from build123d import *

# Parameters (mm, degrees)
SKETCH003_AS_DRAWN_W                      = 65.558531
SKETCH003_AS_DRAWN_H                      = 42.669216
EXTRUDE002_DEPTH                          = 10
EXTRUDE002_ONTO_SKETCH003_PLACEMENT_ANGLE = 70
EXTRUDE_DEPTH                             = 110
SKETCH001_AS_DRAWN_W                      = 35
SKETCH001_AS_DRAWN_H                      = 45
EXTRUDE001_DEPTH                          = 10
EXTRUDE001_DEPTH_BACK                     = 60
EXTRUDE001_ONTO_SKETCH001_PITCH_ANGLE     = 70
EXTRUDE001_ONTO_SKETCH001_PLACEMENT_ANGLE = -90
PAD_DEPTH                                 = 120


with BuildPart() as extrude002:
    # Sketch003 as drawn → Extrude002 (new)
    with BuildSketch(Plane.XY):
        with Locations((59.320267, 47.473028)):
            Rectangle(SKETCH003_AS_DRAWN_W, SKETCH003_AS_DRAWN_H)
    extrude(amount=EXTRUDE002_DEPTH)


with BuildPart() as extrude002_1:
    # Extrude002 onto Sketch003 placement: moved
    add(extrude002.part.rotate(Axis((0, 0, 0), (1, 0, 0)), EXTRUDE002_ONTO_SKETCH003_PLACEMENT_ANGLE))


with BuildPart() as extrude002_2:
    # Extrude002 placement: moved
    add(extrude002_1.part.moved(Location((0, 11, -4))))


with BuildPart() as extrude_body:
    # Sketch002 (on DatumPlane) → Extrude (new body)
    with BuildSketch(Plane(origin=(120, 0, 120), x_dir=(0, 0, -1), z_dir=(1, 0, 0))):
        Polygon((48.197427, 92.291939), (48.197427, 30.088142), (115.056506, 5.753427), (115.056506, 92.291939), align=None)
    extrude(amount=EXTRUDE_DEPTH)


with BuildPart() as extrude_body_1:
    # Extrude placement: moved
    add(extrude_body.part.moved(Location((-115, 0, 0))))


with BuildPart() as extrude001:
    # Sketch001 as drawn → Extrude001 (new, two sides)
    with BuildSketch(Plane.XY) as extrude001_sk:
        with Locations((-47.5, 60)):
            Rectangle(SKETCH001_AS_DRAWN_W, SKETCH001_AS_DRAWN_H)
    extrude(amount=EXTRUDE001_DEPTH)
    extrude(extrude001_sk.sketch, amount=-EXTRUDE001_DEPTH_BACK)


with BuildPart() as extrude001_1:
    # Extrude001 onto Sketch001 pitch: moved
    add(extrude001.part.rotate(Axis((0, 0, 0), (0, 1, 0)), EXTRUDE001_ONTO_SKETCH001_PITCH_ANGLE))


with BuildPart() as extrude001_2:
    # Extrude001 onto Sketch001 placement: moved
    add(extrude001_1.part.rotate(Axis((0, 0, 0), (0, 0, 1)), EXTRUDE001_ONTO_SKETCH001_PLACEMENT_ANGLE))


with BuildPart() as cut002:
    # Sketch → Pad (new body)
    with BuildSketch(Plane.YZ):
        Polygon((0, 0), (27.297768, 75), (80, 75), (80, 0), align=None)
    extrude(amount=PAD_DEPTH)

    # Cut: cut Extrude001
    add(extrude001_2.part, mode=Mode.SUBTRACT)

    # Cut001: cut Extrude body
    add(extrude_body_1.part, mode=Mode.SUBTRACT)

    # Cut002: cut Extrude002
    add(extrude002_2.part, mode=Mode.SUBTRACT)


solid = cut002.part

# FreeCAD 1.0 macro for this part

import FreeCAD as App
import Part
import Sketcher

V = App.Vector
Q = App.Units.Quantity


def add_polygon(sketch, points):
    """Adds a closed chain of lines whose ends are joined by coincident constraints."""
    first, n = sketch.GeometryCount, len(points)
    for a, b in zip(points, points[1:] + points[:1]):
        sketch.addGeometry(Part.LineSegment(App.Vector(*a, 0), App.Vector(*b, 0)), False)
    for i in range(n):
        sketch.addConstraint(Sketcher.Constraint("Coincident", first + i, 2, first + (i + 1) % n, 1))

doc = App.newDocument("Part")
params = doc.addObject("Spreadsheet::Sheet", "Params")
for row, (alias, value) in enumerate([
    ("pad1_length", "10 mm"),
    ("pad2_length", "110 mm"),
    ("sketch3_width", "35 mm"),
    ("sketch3_height", "45 mm"),
    ("pad3_length", "10 mm"),
    ("pad3_length2", "60 mm"),
    ("sketch4_width", "80 mm"),
    ("sketch4_height", "75 mm"),
    ("pad4_length", "120 mm"),
], start=1):
    params.set(f"A{row}", alias)
    params.set(f"B{row}", "=" + value)
    params.setAlias(f"B{row}", alias)

body = doc.addObject("PartDesign::Body", "Body")

# Sketch on XY plane
sketch1 = body.newObject("Sketcher::SketchObject", "Sketch")
sketch1.AttachmentSupport = (doc.getObject("XY_Plane"), [""])
sketch1.MapMode = "FlatFace"
add_polygon(sketch1, [(26.541002, 68.807636), (26.541002, 26.13842), (92.099532, 26.13842), (92.099532, 68.807636)])  # lines 0-3
sketch1.addConstraint([
    Sketcher.Constraint("Vertical", 0),
    Sketcher.Constraint("Horizontal", 1),
    Sketcher.Constraint("Vertical", 2),
    Sketcher.Constraint("Horizontal", 3),
    Sketcher.Constraint("DistanceX", -1, 1, 0, 2, Q("26.541002 mm")),
    Sketcher.Constraint("DistanceX", 1, 1, 1, 2, Q("65.558531 mm")),
    Sketcher.Constraint("DistanceY", 0, 2, 0, 1, Q("42.669216 mm")),
    Sketcher.Constraint("DistanceY", -1, 1, 0, 2, Q("26.13842 mm")),
])
pad1 = body.newObject("PartDesign::Pad", "Pad")
pad1.Profile = sketch1
pad1.setExpression("Length", "Params.pad1_length")
body2 = doc.addObject("PartDesign::Body", "Body001")
doc.recompute()

body.Placement = App.Placement(V(0, 0, 0), App.Rotation(V(1, 0, 0), 70))
boolean = body2.newObject("PartDesign::Boolean", "Boolean")
boolean.Type = "Fuse"
boolean.addObjects([body])
body3 = doc.addObject("PartDesign::Body", "Body002")
doc.recompute()

body2.Placement = App.Placement(V(0, 11, -4), App.Rotation(V(0, 0, 1), 0))
boolean2 = body3.newObject("PartDesign::Boolean", "Boolean001")
boolean2.Type = "Fuse"
boolean2.addObjects([body2])
body4 = doc.addObject("PartDesign::Body", "Body003")

# Sketch on YZ plane
sketch2 = body4.newObject("Sketcher::SketchObject", "Sketch001")
sketch2.AttachmentSupport = (doc.getObject("YZ_Plane003"), [""])
sketch2.MapMode = "FlatFace"
sketch2.AttachmentOffset = App.Placement(V(0, 0, 120), App.Rotation())
add_polygon(sketch2, [(92.291939, 71.802573), (30.088142, 71.802573), (5.753427, 4.943494), (92.291939, 4.943494)])  # lines 0-3
sketch2.addConstraint([
    Sketcher.Constraint("Horizontal", 0),
    Sketcher.Constraint("Horizontal", 2),
    Sketcher.Constraint("Vertical", 3),
    Sketcher.Constraint("Angle", 1, Q("-110 deg")),
    Sketcher.Constraint("DistanceX", 2, 1, 2, 2, Q("86.538512 mm")),
    Sketcher.Constraint("DistanceY", 3, 1, 3, 2, Q("66.859079 mm")),
    Sketcher.Constraint("DistanceX", -1, 1, 2, 2, Q("92.291939 mm")),
    Sketcher.Constraint("DistanceY", -1, 1, 0, 2, Q("71.802573 mm")),
])
pad2 = body4.newObject("PartDesign::Pad", "Pad001")
pad2.Profile = sketch2
pad2.setExpression("Length", "Params.pad2_length")
body5 = doc.addObject("PartDesign::Body", "Body004")
doc.recompute()

body4.Placement = App.Placement(V(-115, 0, 0), App.Rotation(V(0, 0, 1), 0))
boolean3 = body5.newObject("PartDesign::Boolean", "Boolean002")
boolean3.Type = "Fuse"
boolean3.addObjects([body4])
body6 = doc.addObject("PartDesign::Body", "Body005")

# Sketch on XY plane
sketch3 = body6.newObject("Sketcher::SketchObject", "Sketch002")
sketch3.AttachmentSupport = (doc.getObject("XY_Plane005"), [""])
sketch3.MapMode = "FlatFace"
add_polygon(sketch3, [(-65, 82.5), (-65, 37.5), (-30, 37.5), (-30, 82.5)])  # lines 0-3
sketch3.addConstraint([
    Sketcher.Constraint("Vertical", 0),
    Sketcher.Constraint("Horizontal", 1),
    Sketcher.Constraint("Vertical", 2),
    Sketcher.Constraint("Horizontal", 3),
    Sketcher.Constraint("DistanceX", 1, 1, 1, 2, Q("35 mm")),
    Sketcher.Constraint("DistanceY", 0, 2, 0, 1, Q("45 mm")),
    Sketcher.Constraint("DistanceX", 0, 2, -1, 1, Q("65 mm")),
    Sketcher.Constraint("DistanceY", -1, 1, 0, 2, Q("37.5 mm")),
])
sketch3.setExpression("Constraints[8]", "Params.sketch3_width")
sketch3.setExpression("Constraints[9]", "Params.sketch3_height")
pad3 = body6.newObject("PartDesign::Pad", "Pad002")
pad3.Profile = sketch3
pad3.Type = "TwoLengths"
pad3.setExpression("Length", "Params.pad3_length")
pad3.setExpression("Length2", "Params.pad3_length2")
body7 = doc.addObject("PartDesign::Body", "Body006")
doc.recompute()

body6.Placement = App.Placement(V(0, 0, 0), App.Rotation(V(0, 1, 0), 70))
boolean4 = body7.newObject("PartDesign::Boolean", "Boolean003")
boolean4.Type = "Fuse"
boolean4.addObjects([body6])
body8 = doc.addObject("PartDesign::Body", "Body007")
doc.recompute()

body7.Placement = App.Placement(V(0, 0, 0), App.Rotation(V(0, 0, 1), 270))
boolean5 = body8.newObject("PartDesign::Boolean", "Boolean004")
boolean5.Type = "Fuse"
boolean5.addObjects([body7])
body9 = doc.addObject("PartDesign::Body", "Body008")

# Sketch on YZ plane
sketch4 = body9.newObject("Sketcher::SketchObject", "Sketch003")
sketch4.AttachmentSupport = (doc.getObject("YZ_Plane008"), [""])
sketch4.MapMode = "FlatFace"
add_polygon(sketch4, [(27.297768, 75), (0, 0), (80, 0), (80, 75)])  # lines 0-3
sketch4.addConstraint([
    Sketcher.Constraint("Horizontal", 1),
    Sketcher.Constraint("Vertical", 2),
    Sketcher.Constraint("Horizontal", 3),
    Sketcher.Constraint("Coincident", 0, 2, -1, 1),
    Sketcher.Constraint("DistanceX", 1, 1, 1, 2, Q("80 mm")),
    Sketcher.Constraint("DistanceY", 2, 1, 2, 2, Q("75 mm")),
    Sketcher.Constraint("Angle", 0, Q("-110 deg")),
])
sketch4.setExpression("Constraints[8]", "Params.sketch4_width")
sketch4.setExpression("Constraints[9]", "Params.sketch4_height")
pad4 = body9.newObject("PartDesign::Pad", "Pad003")
pad4.Profile = sketch4
pad4.setExpression("Length", "Params.pad4_length")
doc.recompute()

boolean6 = body9.newObject("PartDesign::Boolean", "Boolean005")
boolean6.Type = "Cut"
boolean6.addObjects([body8])
doc.recompute()

boolean7 = body9.newObject("PartDesign::Boolean", "Boolean006")
boolean7.Type = "Cut"
boolean7.addObjects([body5])
doc.recompute()

boolean8 = body9.newObject("PartDesign::Boolean", "Boolean007")
boolean8.Type = "Cut"
boolean8.addObjects([body3])

doc.recompute()
